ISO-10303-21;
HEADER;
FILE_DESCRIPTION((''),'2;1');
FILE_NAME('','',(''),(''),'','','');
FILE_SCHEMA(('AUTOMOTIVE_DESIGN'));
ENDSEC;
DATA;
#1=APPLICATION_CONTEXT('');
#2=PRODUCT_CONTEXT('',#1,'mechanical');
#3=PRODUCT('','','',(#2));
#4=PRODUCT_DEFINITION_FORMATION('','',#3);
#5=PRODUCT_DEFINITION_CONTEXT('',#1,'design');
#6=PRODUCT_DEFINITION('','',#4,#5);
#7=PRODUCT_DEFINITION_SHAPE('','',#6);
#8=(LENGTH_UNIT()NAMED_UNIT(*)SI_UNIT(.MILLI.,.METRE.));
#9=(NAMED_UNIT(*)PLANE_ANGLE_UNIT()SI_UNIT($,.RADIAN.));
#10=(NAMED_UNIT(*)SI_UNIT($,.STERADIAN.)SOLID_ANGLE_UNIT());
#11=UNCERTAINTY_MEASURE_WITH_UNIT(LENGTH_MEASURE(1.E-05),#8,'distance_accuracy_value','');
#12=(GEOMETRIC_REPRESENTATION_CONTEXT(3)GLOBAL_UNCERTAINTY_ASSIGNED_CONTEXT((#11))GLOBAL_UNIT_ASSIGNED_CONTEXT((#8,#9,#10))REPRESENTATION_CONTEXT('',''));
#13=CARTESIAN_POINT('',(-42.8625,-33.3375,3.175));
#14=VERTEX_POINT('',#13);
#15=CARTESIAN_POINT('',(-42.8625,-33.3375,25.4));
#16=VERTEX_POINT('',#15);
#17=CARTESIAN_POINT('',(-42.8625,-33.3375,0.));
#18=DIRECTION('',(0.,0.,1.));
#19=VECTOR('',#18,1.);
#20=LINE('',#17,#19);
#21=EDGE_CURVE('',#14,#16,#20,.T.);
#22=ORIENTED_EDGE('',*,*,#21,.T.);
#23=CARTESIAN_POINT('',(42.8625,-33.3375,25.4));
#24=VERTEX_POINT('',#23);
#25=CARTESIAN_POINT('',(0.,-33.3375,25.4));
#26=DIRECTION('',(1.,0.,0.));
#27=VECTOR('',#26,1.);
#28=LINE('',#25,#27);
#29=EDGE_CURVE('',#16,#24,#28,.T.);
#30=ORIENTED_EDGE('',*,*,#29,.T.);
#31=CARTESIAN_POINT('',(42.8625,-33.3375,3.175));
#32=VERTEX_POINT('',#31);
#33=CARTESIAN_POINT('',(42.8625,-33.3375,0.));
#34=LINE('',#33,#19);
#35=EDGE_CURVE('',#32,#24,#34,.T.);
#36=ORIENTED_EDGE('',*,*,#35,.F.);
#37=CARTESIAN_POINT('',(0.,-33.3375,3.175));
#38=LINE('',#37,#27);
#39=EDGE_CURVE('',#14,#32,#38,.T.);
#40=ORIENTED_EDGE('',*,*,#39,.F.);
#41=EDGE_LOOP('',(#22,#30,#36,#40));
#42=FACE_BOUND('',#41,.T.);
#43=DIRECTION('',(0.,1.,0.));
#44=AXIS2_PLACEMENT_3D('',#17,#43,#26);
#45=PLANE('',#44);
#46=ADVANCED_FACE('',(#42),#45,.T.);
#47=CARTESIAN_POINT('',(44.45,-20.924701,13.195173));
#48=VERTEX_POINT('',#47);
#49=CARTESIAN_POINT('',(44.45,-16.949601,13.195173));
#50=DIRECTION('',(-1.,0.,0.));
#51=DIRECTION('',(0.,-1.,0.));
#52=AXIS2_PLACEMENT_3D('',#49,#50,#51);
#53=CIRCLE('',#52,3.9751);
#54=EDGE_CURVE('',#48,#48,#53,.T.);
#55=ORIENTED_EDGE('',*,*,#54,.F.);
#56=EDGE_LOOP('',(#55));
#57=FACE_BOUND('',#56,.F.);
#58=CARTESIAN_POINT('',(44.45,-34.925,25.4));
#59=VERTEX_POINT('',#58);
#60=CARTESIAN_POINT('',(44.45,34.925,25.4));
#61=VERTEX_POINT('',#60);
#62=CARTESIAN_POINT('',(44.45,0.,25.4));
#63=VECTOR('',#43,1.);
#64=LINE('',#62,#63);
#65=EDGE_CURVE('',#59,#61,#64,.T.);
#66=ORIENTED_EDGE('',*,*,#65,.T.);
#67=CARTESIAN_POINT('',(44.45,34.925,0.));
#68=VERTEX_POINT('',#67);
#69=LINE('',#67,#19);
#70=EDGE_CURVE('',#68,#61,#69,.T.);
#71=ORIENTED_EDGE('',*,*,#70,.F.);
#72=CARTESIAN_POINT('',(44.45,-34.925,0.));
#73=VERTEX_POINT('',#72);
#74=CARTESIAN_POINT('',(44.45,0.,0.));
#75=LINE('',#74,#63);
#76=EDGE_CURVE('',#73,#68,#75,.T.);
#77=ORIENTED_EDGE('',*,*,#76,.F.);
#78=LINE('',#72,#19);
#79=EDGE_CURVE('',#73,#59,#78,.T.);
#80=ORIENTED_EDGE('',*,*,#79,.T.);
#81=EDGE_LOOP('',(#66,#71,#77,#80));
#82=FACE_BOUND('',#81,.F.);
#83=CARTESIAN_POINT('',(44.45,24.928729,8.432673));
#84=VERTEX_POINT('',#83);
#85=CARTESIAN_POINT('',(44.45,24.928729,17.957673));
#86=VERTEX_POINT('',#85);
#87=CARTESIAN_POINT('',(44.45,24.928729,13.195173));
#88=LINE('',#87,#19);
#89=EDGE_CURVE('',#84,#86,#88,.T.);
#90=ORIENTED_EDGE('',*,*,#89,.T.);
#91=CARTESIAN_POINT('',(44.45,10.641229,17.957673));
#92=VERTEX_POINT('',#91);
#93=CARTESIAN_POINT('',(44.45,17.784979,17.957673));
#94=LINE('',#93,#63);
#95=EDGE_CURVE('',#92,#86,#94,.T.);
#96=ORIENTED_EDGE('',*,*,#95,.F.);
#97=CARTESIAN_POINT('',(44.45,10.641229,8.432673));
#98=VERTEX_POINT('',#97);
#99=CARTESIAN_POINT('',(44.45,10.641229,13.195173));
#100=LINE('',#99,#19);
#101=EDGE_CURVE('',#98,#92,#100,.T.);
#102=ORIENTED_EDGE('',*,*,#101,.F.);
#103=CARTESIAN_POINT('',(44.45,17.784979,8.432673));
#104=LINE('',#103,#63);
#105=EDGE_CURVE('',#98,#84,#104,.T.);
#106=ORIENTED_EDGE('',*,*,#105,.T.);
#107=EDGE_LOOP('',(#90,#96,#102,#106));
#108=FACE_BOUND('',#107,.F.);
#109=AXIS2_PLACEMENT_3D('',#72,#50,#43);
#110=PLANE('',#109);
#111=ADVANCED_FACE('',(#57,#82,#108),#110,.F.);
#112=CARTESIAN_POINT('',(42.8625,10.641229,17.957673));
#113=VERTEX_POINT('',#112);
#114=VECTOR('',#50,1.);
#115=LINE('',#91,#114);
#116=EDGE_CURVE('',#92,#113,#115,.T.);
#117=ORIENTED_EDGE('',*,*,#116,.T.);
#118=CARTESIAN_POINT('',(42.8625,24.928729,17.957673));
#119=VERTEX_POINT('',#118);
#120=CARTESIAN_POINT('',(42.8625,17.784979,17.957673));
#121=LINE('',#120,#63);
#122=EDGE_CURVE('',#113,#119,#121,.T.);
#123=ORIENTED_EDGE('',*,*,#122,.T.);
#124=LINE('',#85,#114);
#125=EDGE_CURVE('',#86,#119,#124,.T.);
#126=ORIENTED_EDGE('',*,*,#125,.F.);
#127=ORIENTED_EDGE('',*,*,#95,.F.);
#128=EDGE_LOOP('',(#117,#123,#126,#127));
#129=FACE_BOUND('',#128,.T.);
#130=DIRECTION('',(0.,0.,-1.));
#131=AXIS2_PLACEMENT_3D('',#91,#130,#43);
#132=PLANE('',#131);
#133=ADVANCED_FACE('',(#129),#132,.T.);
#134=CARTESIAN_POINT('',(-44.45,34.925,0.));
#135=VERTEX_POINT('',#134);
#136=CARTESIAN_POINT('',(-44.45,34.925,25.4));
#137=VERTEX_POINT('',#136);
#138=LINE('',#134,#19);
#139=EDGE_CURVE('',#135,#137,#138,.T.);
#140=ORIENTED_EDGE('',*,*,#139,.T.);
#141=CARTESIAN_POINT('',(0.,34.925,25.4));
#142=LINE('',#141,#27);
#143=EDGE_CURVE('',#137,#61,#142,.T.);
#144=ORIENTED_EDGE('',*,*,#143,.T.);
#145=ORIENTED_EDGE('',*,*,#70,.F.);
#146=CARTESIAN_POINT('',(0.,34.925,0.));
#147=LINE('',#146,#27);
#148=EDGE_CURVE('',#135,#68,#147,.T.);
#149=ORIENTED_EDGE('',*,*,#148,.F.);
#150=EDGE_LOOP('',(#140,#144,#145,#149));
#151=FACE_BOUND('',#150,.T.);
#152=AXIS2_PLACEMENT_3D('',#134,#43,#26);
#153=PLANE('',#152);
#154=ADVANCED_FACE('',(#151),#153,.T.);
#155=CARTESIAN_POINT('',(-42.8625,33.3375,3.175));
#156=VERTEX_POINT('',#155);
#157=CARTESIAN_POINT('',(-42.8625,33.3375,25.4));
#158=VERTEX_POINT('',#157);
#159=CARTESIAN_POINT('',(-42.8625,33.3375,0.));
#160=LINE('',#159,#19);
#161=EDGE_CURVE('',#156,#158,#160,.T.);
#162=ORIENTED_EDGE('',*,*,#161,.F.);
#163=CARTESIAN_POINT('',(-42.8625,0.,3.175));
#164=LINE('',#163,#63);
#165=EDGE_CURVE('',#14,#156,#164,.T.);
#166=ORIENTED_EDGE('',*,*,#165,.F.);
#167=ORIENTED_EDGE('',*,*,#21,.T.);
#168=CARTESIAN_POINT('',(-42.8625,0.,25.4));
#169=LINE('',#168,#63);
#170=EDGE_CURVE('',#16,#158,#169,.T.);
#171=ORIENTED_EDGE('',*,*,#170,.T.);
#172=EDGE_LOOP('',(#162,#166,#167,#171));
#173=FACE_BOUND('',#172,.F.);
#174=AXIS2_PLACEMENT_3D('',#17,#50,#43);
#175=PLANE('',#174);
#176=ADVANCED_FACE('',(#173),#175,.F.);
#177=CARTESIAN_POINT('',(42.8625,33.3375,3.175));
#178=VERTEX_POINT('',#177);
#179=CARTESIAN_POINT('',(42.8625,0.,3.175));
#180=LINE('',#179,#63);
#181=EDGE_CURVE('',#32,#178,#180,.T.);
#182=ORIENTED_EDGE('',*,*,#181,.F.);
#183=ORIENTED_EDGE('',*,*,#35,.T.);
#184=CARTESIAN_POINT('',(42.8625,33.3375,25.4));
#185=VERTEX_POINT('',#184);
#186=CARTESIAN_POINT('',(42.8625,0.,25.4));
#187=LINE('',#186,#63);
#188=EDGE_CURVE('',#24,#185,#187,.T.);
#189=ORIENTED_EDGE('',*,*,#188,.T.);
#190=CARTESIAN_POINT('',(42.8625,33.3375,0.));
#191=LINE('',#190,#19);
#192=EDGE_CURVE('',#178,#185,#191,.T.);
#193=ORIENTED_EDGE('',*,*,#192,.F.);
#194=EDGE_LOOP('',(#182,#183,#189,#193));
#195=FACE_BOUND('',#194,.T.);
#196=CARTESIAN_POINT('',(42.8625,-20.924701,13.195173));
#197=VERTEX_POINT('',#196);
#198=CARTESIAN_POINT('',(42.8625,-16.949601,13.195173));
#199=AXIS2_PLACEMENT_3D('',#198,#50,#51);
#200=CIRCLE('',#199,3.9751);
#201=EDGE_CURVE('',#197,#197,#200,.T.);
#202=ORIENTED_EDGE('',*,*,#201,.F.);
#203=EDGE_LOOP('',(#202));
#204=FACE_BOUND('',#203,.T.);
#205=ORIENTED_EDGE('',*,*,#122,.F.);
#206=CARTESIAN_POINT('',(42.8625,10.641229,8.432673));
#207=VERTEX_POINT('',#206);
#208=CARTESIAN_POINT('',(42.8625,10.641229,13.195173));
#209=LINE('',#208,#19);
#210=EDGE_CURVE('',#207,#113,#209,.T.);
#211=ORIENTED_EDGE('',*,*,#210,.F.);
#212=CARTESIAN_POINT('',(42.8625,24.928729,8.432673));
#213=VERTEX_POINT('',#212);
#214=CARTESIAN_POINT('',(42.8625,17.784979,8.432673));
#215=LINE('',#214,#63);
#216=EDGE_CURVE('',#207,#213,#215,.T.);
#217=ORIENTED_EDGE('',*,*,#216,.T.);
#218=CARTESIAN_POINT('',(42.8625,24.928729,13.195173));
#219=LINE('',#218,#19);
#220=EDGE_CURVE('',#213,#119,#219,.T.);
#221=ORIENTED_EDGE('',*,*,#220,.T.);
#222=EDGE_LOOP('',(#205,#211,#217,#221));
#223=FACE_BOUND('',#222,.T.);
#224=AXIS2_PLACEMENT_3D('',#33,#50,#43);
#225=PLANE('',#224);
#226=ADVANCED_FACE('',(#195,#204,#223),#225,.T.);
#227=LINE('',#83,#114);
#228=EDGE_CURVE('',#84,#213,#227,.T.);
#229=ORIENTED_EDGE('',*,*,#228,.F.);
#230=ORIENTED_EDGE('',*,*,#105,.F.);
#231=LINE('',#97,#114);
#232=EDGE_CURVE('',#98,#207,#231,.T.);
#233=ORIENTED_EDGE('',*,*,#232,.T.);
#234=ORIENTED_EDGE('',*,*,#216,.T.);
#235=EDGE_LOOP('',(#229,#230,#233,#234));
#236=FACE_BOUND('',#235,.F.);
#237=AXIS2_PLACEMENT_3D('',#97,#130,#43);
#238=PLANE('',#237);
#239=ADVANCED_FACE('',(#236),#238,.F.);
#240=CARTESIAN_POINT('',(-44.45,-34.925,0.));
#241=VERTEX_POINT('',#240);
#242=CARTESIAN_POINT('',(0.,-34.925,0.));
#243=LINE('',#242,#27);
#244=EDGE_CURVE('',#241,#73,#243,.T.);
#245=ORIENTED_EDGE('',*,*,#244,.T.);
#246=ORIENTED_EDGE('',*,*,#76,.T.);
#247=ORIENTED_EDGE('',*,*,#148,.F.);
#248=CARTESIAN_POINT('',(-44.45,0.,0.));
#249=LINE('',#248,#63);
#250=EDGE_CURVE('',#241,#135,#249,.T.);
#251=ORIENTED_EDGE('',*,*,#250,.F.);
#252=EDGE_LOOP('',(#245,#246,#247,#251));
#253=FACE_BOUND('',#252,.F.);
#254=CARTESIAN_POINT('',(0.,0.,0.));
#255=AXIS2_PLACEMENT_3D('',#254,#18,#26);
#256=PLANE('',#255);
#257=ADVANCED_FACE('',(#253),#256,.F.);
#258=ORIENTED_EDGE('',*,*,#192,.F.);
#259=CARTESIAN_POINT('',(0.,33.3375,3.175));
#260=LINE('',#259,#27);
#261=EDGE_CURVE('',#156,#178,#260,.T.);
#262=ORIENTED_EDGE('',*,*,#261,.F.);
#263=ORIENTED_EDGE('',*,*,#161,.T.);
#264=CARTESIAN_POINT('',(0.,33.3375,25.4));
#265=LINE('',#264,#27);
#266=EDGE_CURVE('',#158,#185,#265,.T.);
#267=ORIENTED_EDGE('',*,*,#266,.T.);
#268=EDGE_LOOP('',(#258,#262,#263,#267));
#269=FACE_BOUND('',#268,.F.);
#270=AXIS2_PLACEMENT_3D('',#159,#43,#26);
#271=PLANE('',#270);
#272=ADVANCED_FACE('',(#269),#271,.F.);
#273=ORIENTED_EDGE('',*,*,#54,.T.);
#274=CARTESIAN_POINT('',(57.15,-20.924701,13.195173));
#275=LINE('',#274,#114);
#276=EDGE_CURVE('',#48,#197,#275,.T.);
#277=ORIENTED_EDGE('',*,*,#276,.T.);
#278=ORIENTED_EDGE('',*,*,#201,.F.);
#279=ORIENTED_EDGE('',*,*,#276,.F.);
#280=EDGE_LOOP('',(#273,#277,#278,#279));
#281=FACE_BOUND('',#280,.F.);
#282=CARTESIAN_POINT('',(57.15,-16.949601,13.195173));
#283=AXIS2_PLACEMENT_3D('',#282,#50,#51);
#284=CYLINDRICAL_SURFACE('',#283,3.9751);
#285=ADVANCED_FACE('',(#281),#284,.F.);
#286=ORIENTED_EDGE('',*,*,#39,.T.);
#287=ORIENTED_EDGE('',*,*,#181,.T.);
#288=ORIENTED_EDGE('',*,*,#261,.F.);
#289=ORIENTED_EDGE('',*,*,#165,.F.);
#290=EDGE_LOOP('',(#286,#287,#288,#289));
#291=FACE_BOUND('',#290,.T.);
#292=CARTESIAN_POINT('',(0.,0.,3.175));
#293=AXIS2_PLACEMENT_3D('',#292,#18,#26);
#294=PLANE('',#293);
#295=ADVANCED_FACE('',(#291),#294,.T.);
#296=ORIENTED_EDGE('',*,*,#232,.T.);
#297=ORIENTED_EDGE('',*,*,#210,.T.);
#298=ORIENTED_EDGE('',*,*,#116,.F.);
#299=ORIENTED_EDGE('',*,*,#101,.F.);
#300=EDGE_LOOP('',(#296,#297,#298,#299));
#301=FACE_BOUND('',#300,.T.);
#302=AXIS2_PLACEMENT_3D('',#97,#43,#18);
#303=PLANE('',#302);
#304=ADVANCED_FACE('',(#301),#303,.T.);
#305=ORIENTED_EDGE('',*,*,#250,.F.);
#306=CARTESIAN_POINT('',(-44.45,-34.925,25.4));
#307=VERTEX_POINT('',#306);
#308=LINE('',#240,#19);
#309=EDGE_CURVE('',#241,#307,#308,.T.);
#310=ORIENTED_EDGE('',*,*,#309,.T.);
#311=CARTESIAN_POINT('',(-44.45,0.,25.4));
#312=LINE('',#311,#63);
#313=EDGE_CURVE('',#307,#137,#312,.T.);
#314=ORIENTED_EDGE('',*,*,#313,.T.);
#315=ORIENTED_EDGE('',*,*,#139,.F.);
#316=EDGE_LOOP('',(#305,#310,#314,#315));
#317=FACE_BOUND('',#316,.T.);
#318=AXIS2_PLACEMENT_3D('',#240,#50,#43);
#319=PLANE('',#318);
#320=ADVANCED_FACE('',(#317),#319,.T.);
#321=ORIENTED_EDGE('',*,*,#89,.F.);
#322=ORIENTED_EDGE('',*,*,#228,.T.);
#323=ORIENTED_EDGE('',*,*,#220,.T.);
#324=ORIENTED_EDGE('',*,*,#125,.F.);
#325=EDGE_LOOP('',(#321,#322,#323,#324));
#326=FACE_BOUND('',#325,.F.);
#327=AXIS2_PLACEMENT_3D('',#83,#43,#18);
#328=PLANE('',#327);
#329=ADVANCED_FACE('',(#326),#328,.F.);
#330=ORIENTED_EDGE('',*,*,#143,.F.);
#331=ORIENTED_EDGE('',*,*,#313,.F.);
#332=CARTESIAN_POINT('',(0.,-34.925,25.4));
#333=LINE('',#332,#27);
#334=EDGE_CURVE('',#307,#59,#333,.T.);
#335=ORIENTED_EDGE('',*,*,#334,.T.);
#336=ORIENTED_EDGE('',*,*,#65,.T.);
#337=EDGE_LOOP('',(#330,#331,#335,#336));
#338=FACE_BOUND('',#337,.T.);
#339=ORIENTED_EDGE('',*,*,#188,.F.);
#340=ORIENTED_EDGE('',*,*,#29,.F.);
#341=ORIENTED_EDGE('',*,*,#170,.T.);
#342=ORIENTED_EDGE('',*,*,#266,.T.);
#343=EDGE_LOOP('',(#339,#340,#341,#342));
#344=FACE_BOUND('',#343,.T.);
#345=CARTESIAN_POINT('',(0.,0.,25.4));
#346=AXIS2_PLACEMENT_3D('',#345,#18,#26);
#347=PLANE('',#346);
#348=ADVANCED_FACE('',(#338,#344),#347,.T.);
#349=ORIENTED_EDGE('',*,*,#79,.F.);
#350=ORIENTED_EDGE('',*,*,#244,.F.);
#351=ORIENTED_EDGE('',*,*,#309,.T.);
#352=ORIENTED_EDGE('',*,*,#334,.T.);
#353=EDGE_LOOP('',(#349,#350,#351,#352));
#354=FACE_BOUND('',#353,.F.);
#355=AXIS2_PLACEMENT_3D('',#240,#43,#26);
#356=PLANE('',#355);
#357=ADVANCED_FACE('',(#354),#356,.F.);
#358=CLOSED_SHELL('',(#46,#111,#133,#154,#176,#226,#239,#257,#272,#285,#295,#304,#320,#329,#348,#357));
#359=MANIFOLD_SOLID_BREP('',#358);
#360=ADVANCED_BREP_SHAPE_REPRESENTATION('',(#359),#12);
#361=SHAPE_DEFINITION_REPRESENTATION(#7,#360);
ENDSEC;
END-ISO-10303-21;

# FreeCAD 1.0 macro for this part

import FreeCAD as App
import Part
import Sketcher
Q = App.Units.Quantity

doc = App.newDocument("Part")
body = doc.addObject("PartDesign::Body", "Body")

sketch1 = body.newObject("Sketcher::SketchObject", "Sketch")
sketch1.AttachmentSupport = (doc.getObject("XY_Plane"), [""])
sketch1.MapMode = "FlatFace"
sketch1.addGeometry([
    Part.LineSegment(App.Vector(-44, 35, 0), App.Vector(-44, -35, 0)),
    Part.LineSegment(App.Vector(-44, -35, 0), App.Vector(44, -35, 0)),
    Part.LineSegment(App.Vector(44, -35, 0), App.Vector(44, 35, 0)),
    Part.LineSegment(App.Vector(44, 35, 0), App.Vector(-44, 35, 0)),
    Part.LineSegment(App.Vector(43, -33, 0), App.Vector(-43, -33, 0)),
    Part.LineSegment(App.Vector(-43, -33, 0), App.Vector(-43, 33, 0)),
    Part.LineSegment(App.Vector(-43, 33, 0), App.Vector(43, 33, 0)),
    Part.LineSegment(App.Vector(43, 33, 0), App.Vector(43, -33, 0)),
], False)
sketch1.addConstraint([
    Sketcher.Constraint("Coincident", 0, 2, 1, 1),
    Sketcher.Constraint("Coincident", 1, 2, 2, 1),
    Sketcher.Constraint("Coincident", 2, 2, 3, 1),
    Sketcher.Constraint("Coincident", 3, 2, 0, 1),
    Sketcher.Constraint("Coincident", 4, 2, 5, 1),
    Sketcher.Constraint("Coincident", 5, 2, 6, 1),
    Sketcher.Constraint("Coincident", 6, 2, 7, 1),
    Sketcher.Constraint("Coincident", 7, 2, 4, 1),
    Sketcher.Constraint("Vertical", 0),
    Sketcher.Constraint("Horizontal", 1),
    Sketcher.Constraint("Vertical", 2),
    Sketcher.Constraint("Horizontal", 3),
    Sketcher.Constraint("Horizontal", 4),
    Sketcher.Constraint("Vertical", 5),
    Sketcher.Constraint("Horizontal", 6),
    Sketcher.Constraint("Vertical", 7),
    Sketcher.Constraint("Symmetric", 0, 2, 2, 2, -1, 1),
    Sketcher.Constraint("Symmetric", 4, 2, 6, 2, -1, 1),
    Sketcher.Constraint("DistanceX", 1, 1, 1, 2, Q("3.5 in")),
    Sketcher.Constraint("DistanceY", 0, 2, 0, 1, Q("2.75 in")),
    Sketcher.Constraint("DistanceX", 4, 2, 4, 1, Q("3.375 in")),
    Sketcher.Constraint("DistanceY", 5, 1, 5, 2, Q("2.625 in")),
])
pad1 = body.newObject("PartDesign::Pad", "Pad")
pad1.Profile = sketch1
pad1.Length = Q("1 in")

sketch2 = body.newObject("Sketcher::SketchObject", "Sketch001")
sketch2.AttachmentSupport = (doc.getObject("XY_Plane"), [""])
sketch2.MapMode = "FlatFace"
sketch2.addGeometry([
    Part.LineSegment(App.Vector(-43, 33, 0), App.Vector(-43, -33, 0)),
    Part.LineSegment(App.Vector(-43, -33, 0), App.Vector(43, -33, 0)),
    Part.LineSegment(App.Vector(43, -33, 0), App.Vector(43, 33, 0)),
    Part.LineSegment(App.Vector(43, 33, 0), App.Vector(-43, 33, 0)),
], False)
sketch2.addConstraint([
    Sketcher.Constraint("Coincident", 0, 2, 1, 1),
    Sketcher.Constraint("Coincident", 1, 2, 2, 1),
    Sketcher.Constraint("Coincident", 2, 2, 3, 1),
    Sketcher.Constraint("Coincident", 3, 2, 0, 1),
    Sketcher.Constraint("Vertical", 0),
    Sketcher.Constraint("Horizontal", 1),
    Sketcher.Constraint("Vertical", 2),
    Sketcher.Constraint("Horizontal", 3),
    Sketcher.Constraint("Symmetric", 0, 2, 2, 2, -1, 1),
    Sketcher.Constraint("DistanceX", 1, 1, 1, 2, Q("3.375 in")),
    Sketcher.Constraint("DistanceY", 0, 2, 0, 1, Q("2.625 in")),
])
pad2 = body.newObject("PartDesign::Pad", "Pad001")
pad2.Profile = sketch2
pad2.Length = Q("0.125 in")

sketch3 = body.newObject("Sketcher::SketchObject", "Sketch002")
sketch3.AttachmentSupport = (doc.getObject("YZ_Plane"), [""])
sketch3.MapMode = "FlatFace"
sketch3.AttachmentOffset = App.Placement(App.Vector(0, 0, 1.75 * 25.4), App.Rotation())
sketch3.addGeometry(Part.Circle(App.Vector(-16.9, 13.2, 0), App.Vector(0, 0, 1), 4), False)
sketch3.addConstraint([
    Sketcher.Constraint("Diameter", 0, Q("0.313 in")),
    Sketcher.Constraint("DistanceX", 0, 3, -1, 1, 16.949601),
    Sketcher.Constraint("DistanceY", -1, 1, 0, 3, 13.195173),
])
doc.recompute()
hole = body.newObject("PartDesign::Hole", "Hole")
hole.Profile = sketch3
hole.ThreadType = "None"
hole.Diameter = Q("0.313 in")
hole.DepthType = "Dimension"
hole.Depth = Q("0.5 in")
hole.DrillPoint = "Flat"

sketch4 = body.newObject("Sketcher::SketchObject", "Sketch003")
sketch4.AttachmentSupport = (doc.getObject("YZ_Plane"), [""])
sketch4.MapMode = "FlatFace"
sketch4.AttachmentOffset = App.Placement(App.Vector(0, 0, 1.75 * 25.4), App.Rotation())
sketch4.addGeometry([
    Part.LineSegment(App.Vector(11, 18, 0), App.Vector(11, 8, 0)),
    Part.LineSegment(App.Vector(11, 8, 0), App.Vector(25, 8, 0)),
    Part.LineSegment(App.Vector(25, 8, 0), App.Vector(25, 18, 0)),
    Part.LineSegment(App.Vector(25, 18, 0), App.Vector(11, 18, 0)),
], False)
sketch4.addConstraint([
    Sketcher.Constraint("Coincident", 0, 2, 1, 1),
    Sketcher.Constraint("Coincident", 1, 2, 2, 1),
    Sketcher.Constraint("Coincident", 2, 2, 3, 1),
    Sketcher.Constraint("Coincident", 3, 2, 0, 1),
    Sketcher.Constraint("Vertical", 0),
    Sketcher.Constraint("Horizontal", 1),
    Sketcher.Constraint("Vertical", 2),
    Sketcher.Constraint("Horizontal", 3),
    Sketcher.Constraint("DistanceX", 1, 1, 1, 2, Q("0.5625 in")),
    Sketcher.Constraint("DistanceY", 0, 2, 0, 1, Q("0.375 in")),
    Sketcher.Constraint("DistanceX", -1, 1, 0, 2, 10.641229),
    Sketcher.Constraint("DistanceY", -1, 1, 0, 2, 8.432673),
])
pocket1 = body.newObject("PartDesign::Pocket", "Pocket")
pocket1.Profile = sketch4
pocket1.Length = Q("0.0625 in")

doc.recompute()
